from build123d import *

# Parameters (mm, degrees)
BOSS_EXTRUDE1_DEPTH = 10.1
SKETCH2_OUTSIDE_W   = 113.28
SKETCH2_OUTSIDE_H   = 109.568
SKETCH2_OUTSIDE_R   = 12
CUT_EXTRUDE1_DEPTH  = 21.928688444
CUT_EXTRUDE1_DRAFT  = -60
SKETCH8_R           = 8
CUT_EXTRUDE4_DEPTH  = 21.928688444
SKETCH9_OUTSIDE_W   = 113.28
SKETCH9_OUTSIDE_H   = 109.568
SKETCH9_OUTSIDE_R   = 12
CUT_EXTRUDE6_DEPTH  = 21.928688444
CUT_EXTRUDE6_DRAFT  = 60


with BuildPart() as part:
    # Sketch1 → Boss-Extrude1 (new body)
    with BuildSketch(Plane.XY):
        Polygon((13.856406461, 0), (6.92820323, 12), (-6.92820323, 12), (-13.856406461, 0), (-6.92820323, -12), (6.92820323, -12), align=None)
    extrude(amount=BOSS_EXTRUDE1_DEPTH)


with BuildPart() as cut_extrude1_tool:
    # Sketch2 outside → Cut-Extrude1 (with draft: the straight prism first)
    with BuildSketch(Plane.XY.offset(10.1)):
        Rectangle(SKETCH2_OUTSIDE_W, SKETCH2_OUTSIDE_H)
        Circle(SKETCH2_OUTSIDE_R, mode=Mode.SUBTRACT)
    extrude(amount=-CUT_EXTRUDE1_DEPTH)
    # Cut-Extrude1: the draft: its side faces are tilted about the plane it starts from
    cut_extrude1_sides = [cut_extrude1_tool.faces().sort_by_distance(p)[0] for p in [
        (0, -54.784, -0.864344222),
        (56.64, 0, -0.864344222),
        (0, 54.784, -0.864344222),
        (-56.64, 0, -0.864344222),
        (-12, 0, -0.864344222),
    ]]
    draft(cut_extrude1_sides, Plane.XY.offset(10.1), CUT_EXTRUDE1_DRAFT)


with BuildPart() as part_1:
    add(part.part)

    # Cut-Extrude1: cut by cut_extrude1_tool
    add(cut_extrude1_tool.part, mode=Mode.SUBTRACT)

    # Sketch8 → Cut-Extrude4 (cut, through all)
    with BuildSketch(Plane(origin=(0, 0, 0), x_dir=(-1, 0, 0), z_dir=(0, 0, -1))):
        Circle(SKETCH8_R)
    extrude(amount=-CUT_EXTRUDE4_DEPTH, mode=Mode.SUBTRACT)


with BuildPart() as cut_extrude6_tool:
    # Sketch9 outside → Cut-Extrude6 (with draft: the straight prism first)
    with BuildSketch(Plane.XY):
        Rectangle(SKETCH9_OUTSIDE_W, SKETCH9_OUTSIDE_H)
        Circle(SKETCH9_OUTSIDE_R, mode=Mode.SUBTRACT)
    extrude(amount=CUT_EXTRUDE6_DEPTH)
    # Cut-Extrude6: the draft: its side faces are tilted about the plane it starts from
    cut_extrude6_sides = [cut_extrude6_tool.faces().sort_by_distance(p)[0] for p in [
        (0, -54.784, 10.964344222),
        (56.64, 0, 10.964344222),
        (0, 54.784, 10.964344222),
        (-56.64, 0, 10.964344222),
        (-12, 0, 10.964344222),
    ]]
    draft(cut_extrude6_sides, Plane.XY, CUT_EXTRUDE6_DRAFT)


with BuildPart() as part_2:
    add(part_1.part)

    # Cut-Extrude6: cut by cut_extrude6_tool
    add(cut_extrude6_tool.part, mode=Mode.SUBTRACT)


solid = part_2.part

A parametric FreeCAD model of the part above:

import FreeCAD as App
import Part
import Sketcher

V = App.Vector
Q = App.Units.Quantity


def faces_at(feature, points):
    """Names of the faces that lie closest to the given points."""
    faces = feature.Shape.Faces
    near = lambda p: min(range(len(faces)), key=lambda i: faces[i].distToShape(Part.Vertex(*p))[0])
    return sorted({f"Face{near(p) + 1}" for p in points})


def add_polygon(sketch, points):
    """Adds a closed chain of lines whose ends are joined by coincident constraints."""
    first, n = sketch.GeometryCount, len(points)
    for a, b in zip(points, points[1:] + points[:1]):
        sketch.addGeometry(Part.LineSegment(App.Vector(*a, 0), App.Vector(*b, 0)), False)
    for i in range(n):
        sketch.addConstraint(Sketcher.Constraint("Coincident", first + i, 2, first + (i + 1) % n, 1))

doc = App.newDocument("Part")
params = doc.addObject("Spreadsheet::Sheet", "Params")
for row, (alias, value) in enumerate([
    ("pad1_length", "10.1 mm"),
    ("sketch2_diameter", "24 mm"),
    ("sketch2_width", "113.28 mm"),
    ("pad2_length", "21.928688 mm"),
    ("draft_angle", "60 deg"),
    ("sketch3_diameter", "16 mm"),
    ("sketch4_diameter", "24 mm"),
    ("sketch4_width", "113.28 mm"),
    ("pad3_length", "21.928688 mm"),
    ("draft2_angle", "60 deg"),
], start=1):
    params.set(f"A{row}", alias)
    params.set(f"B{row}", "=" + value)
    params.setAlias(f"B{row}", alias)

body = doc.addObject("PartDesign::Body", "Body")

sketch1 = doc.addObject("Sketcher::SketchObject", "Sketch")
body.addObject(sketch1)
sketch1.AttachmentSupport = (doc.XY_Plane, [""])
sketch1.MapMode = "FlatFace"
add_polygon(sketch1, [(13.856406, 0), (6.928203, 12), (-6.928203, 12), (-13.856406, 0), (-6.928203, -12), (6.928203, -12)])
sketch1.addConstraint([
    Sketcher.Constraint("Horizontal", 1),
    Sketcher.Constraint("Horizontal", 4),
    Sketcher.Constraint("Symmetric", 0, 2, 3, 2, -1, 1),
    Sketcher.Constraint("Symmetric", 2, 2, 5, 2, -1, 1),
    Sketcher.Constraint("PointOnObject", 2, 2, -1),
    Sketcher.Constraint("Parallel", 2, 5),
    Sketcher.Constraint("Vertical", 1, 2, 3, 2),
    Sketcher.Constraint("Angle", 0, Q("120 deg")),
    Sketcher.Constraint("DistanceY", -1, 1, 0, 2, 12.0),
    Sketcher.Constraint("DistanceX", 1, 2, 1, 1, 13.856406),
])
pad1 = doc.addObject("PartDesign::Pad", "Pad")
body.addObject(pad1)
pad1.Profile = sketch1
pad1.setExpression("Length", "Params.pad1_length")
body2 = doc.addObject("PartDesign::Body", "Body001")

sketch2 = doc.addObject("Sketcher::SketchObject", "Sketch001")
body2.addObject(sketch2)
sketch2.AttachmentSupport = (doc.getObject("XY_Plane001"), [""])
sketch2.MapMode = "FlatFace"
sketch2.AttachmentOffset = App.Placement(V(0, 0, 10.1), App.Rotation())
add_polygon(sketch2, [(-56.64, 54.784), (-56.64, -54.784), (56.64, -54.784), (56.64, 54.784)])
sketch2.addGeometry(Part.Circle(V(0, 0, 0), V(0, 0, 1), 12), False)
sketch2.addConstraint([
    Sketcher.Constraint("Vertical", 0),
    Sketcher.Constraint("Horizontal", 1),
    Sketcher.Constraint("Vertical", 2),
    Sketcher.Constraint("Horizontal", 3),
    Sketcher.Constraint("Coincident", 4, 3, -1, 1),
    Sketcher.Constraint("Symmetric", 0, 2, 2, 2, -1, 1),
    Sketcher.Constraint("Diameter", 4, 24.0),
    Sketcher.Constraint("DistanceX", 1, 1, 1, 2, 113.28),
    Sketcher.Constraint("DistanceY", 0, 2, 0, 1, 109.568),
])
sketch2.setExpression("Constraints[10]", "Params.sketch2_diameter")
sketch2.setExpression("Constraints[11]", "Params.sketch2_width")
pad2 = doc.addObject("PartDesign::Pad", "Pad001")
body2.addObject(pad2)
pad2.Profile = sketch2
pad2.setExpression("Length", "Params.pad2_length")
pad2.Reversed = True
doc.recompute()

datumplane = doc.addObject("PartDesign::Plane", "DatumPlane")
body2.addObject(datumplane)
datumplane.AttachmentSupport = (doc.getObject("XY_Plane001"), [""])
datumplane.MapMode = "FlatFace"
datumplane.AttachmentOffset = App.Placement(V(0, 0, 10.1), App.Rotation())
draft = doc.addObject("PartDesign::Draft", "Draft")
body2.addObject(draft)
draft.Base = (pad2, faces_at(pad2, [
    (0, -54.784, -0.864),
    (56.64, 0, -0.864),
    (0, 54.784, -0.864),
    (-56.64, 0, -0.864),
    (-12, 0, -0.864),
]))
draft.NeutralPlane = (datumplane, [""])
draft.setExpression("Angle", "Params.draft_angle")
draft.Reversed = True
doc.recompute()

boolean = doc.addObject("PartDesign::Boolean", "Boolean")
body.addObject(boolean)
boolean.Type = "Cut"
boolean.addObjects([body2])

sketch3 = doc.addObject("Sketcher::SketchObject", "Sketch002")
body.addObject(sketch3)
sketch3.AttachmentSupport = (doc.XY_Plane, [""])
sketch3.MapMode = "FlatFace"
sketch3.addGeometry(Part.Circle(V(0, 0, 0), V(0, 0, 1), 8), False)
sketch3.addConstraint([
    Sketcher.Constraint("Coincident", 0, 3, -1, 1),
    Sketcher.Constraint("Diameter", 0, 16.0),
])
sketch3.setExpression("Constraints[1]", "Params.sketch3_diameter")
pocket1 = doc.addObject("PartDesign::Pocket", "Pocket")
body.addObject(pocket1)
pocket1.Profile = sketch3
pocket1.Type = "ThroughAll"
pocket1.Reversed = True
body3 = doc.addObject("PartDesign::Body", "Body002")

sketch4 = doc.addObject("Sketcher::SketchObject", "Sketch003")
body3.addObject(sketch4)
sketch4.AttachmentSupport = (doc.getObject("XY_Plane002"), [""])
sketch4.MapMode = "FlatFace"
add_polygon(sketch4, [(-56.64, 54.784), (-56.64, -54.784), (56.64, -54.784), (56.64, 54.784)])
sketch4.addGeometry(Part.Circle(V(0, 0, 0), V(0, 0, 1), 12), False)
sketch4.addConstraint([
    Sketcher.Constraint("Vertical", 0),
    Sketcher.Constraint("Horizontal", 1),
    Sketcher.Constraint("Vertical", 2),
    Sketcher.Constraint("Horizontal", 3),
    Sketcher.Constraint("Coincident", 4, 3, -1, 1),
    Sketcher.Constraint("Symmetric", 0, 2, 2, 2, -1, 1),
    Sketcher.Constraint("Diameter", 4, 24.0),
    Sketcher.Constraint("DistanceX", 1, 1, 1, 2, 113.28),
    Sketcher.Constraint("DistanceY", 0, 2, 0, 1, 109.568),
])
sketch4.setExpression("Constraints[10]", "Params.sketch4_diameter")
sketch4.setExpression("Constraints[11]", "Params.sketch4_width")
pad3 = doc.addObject("PartDesign::Pad", "Pad002")
body3.addObject(pad3)
pad3.Profile = sketch4
pad3.setExpression("Length", "Params.pad3_length")
doc.recompute()

draft2 = doc.addObject("PartDesign::Draft", "Draft001")
body3.addObject(draft2)
draft2.Base = (pad3, faces_at(pad3, [
    (0, -54.784, 10.964),
    (56.64, 0, 10.964),
    (0, 54.784, 10.964),
    (-56.64, 0, 10.964),
    (-12, 0, 10.964),
]))
draft2.NeutralPlane = (doc.getObject("XY_Plane002"), [""])
draft2.setExpression("Angle", "Params.draft2_angle")
draft2.Reversed = False
doc.recompute()

boolean2 = doc.addObject("PartDesign::Boolean", "Boolean001")
body.addObject(boolean2)
boolean2.Type = "Cut"
boolean2.addObjects([body3])

doc.recompute()
